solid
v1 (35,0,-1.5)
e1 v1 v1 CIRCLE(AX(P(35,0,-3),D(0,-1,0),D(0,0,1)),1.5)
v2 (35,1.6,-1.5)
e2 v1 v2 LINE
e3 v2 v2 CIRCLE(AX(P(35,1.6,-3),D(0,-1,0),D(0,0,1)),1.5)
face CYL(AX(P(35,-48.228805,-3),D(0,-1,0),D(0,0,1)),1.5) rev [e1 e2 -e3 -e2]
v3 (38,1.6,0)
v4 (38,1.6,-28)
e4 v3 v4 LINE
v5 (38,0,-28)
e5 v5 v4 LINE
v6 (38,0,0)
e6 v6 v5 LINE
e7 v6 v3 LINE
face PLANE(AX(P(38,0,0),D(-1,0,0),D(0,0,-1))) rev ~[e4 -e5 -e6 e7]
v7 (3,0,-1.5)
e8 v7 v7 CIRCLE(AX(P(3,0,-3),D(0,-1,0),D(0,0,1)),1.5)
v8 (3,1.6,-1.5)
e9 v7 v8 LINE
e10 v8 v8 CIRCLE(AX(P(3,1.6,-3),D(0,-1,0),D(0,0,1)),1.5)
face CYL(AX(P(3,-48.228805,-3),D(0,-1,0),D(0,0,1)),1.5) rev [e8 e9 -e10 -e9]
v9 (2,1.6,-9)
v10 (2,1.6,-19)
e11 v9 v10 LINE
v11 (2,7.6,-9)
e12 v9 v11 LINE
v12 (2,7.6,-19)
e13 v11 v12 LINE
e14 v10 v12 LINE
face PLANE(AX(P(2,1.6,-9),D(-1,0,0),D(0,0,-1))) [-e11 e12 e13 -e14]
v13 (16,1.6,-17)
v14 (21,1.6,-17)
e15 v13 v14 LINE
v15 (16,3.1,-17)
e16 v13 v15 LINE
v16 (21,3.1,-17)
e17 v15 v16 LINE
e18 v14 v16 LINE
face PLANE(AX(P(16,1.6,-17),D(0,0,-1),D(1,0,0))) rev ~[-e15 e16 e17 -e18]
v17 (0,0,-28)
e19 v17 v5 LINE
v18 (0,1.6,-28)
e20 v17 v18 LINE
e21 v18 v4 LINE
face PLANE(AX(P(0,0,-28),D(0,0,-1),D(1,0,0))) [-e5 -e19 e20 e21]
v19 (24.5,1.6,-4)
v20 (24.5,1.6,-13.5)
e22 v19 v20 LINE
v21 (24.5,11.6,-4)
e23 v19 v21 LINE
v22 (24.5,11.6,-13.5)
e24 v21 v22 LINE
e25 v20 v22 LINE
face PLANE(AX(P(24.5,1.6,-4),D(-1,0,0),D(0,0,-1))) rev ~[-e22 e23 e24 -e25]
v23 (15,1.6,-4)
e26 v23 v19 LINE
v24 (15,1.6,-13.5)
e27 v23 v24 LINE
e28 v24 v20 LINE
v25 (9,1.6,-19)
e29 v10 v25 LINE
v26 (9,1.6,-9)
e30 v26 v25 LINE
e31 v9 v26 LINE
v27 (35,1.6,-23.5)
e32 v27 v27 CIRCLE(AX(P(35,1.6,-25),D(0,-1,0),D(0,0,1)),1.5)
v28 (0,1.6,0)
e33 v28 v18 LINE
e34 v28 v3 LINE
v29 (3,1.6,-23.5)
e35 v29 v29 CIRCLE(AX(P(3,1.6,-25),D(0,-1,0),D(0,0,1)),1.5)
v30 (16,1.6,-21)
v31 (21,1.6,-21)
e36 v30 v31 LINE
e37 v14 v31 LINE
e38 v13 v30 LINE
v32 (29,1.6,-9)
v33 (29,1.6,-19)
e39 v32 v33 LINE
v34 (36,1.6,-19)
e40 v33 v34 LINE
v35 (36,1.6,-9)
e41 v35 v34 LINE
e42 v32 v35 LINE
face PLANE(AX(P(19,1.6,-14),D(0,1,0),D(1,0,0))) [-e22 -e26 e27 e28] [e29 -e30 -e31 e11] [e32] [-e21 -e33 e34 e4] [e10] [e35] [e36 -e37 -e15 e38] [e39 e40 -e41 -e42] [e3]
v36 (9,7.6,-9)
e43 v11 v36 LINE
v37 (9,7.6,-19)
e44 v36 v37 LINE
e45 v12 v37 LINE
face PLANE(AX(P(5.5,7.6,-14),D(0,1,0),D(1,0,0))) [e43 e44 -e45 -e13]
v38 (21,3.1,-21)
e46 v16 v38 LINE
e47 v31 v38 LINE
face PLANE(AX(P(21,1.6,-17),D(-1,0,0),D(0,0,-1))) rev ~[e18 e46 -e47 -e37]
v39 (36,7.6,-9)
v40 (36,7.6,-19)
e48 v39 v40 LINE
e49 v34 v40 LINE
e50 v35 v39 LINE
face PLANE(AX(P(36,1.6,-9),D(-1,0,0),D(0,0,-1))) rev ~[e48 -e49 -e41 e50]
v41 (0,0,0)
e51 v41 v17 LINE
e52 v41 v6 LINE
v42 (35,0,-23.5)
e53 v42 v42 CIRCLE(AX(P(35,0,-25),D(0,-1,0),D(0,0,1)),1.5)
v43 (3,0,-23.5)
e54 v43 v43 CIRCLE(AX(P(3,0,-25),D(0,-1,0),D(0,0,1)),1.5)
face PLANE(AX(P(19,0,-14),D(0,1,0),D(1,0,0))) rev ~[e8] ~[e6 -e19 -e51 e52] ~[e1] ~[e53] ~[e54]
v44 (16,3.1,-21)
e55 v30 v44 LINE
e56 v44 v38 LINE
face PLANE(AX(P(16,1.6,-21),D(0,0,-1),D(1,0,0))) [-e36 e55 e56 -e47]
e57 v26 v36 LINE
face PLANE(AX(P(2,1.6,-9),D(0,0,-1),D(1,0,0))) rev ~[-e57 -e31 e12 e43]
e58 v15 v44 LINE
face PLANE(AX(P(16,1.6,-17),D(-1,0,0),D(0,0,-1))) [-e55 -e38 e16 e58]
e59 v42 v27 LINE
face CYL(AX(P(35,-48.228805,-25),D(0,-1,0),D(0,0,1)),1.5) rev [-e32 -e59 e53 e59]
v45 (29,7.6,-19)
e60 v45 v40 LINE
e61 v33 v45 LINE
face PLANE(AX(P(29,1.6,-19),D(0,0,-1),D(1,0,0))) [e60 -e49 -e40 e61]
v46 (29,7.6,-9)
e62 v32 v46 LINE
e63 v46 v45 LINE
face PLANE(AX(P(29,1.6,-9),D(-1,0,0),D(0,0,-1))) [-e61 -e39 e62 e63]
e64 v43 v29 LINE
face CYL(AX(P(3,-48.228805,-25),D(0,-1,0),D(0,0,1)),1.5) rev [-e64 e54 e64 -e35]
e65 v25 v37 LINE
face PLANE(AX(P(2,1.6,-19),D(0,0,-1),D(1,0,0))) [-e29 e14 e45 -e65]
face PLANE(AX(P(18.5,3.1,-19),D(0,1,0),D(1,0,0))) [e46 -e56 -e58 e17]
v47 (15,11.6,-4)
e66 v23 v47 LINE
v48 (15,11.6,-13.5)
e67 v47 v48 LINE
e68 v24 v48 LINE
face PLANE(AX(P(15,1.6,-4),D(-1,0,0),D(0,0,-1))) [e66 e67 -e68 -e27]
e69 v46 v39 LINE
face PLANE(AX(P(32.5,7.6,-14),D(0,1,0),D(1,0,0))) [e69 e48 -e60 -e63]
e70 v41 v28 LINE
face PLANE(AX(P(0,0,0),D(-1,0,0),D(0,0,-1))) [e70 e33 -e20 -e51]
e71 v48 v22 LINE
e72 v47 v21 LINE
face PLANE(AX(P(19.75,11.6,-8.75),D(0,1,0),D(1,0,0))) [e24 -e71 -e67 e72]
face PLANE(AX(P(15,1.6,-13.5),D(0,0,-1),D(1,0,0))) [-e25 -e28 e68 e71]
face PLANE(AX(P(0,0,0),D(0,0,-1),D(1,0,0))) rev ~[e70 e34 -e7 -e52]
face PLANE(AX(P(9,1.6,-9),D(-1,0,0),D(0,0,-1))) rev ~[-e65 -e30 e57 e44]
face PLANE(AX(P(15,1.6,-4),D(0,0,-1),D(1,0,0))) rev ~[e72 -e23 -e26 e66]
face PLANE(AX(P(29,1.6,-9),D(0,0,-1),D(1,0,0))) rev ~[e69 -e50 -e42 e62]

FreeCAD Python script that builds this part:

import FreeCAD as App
import Part
import Sketcher
from FreeCAD import Vector

doc = App.newDocument("Part")
body = doc.addObject("PartDesign::Body", "Body")

sketch1 = body.newObject("Sketcher::SketchObject", "Sketch")
sketch1.AttachmentSupport = (doc.getObject("XZ_Plane"), [""])
sketch1.MapMode = "FlatFace"
sketch1.addGeometry([
    Part.LineSegment(Vector(0, -28, 0), Vector(0, 0, 0)),
    Part.LineSegment(Vector(0, 0, 0), Vector(38, 0, 0)),
    Part.LineSegment(Vector(38, 0, 0), Vector(38, -28, 0)),
    Part.LineSegment(Vector(38, -28, 0), Vector(0, -28, 0)),
], False)
sketch1.addConstraint([
    Sketcher.Constraint("Coincident", 0, 2, 1, 1),
    Sketcher.Constraint("Coincident", 1, 2, 2, 1),
    Sketcher.Constraint("Coincident", 2, 2, 3, 1),
    Sketcher.Constraint("Coincident", 3, 2, 0, 1),
    Sketcher.Constraint("Vertical", 0),
    Sketcher.Constraint("Horizontal", 1),
    Sketcher.Constraint("Vertical", 2),
    Sketcher.Constraint("Horizontal", 3),
    Sketcher.Constraint("Coincident", 0, 2, -1, 1),
    Sketcher.Constraint("DistanceX", 1, 1, 1, 2, 38.0),
    Sketcher.Constraint("DistanceY", 0, 1, 0, 2, 28.0),
])
pad1 = body.newObject("PartDesign::Pad", "Pad")
pad1.Profile = sketch1
pad1.Length = 1.6
pad1.Reversed = True

sketch2 = body.newObject("Sketcher::SketchObject", "Sketch001")
sketch2.AttachmentSupport = (doc.getObject("XZ_Plane"), [""])
sketch2.MapMode = "FlatFace"
sketch2.addGeometry(Part.Circle(Vector(3, -3, 0), Vector(0, 0, 1), 1.5), False)
sketch2.addConstraint([
    Sketcher.Constraint("Diameter", 0, 3.0),
    Sketcher.Constraint("DistanceX", -1, 1, 0, 3, 3.0),
    Sketcher.Constraint("DistanceY", 0, 3, -1, 1, 3.0),
])
pocket1 = body.newObject("PartDesign::Pocket", "Pocket")
pocket1.Profile = sketch2
pocket1.Type = "ThroughAll"
pocket1.Midplane = True

sketch3 = body.newObject("Sketcher::SketchObject", "Sketch002")
sketch3.AttachmentSupport = (doc.getObject("XZ_Plane"), [""])
sketch3.MapMode = "FlatFace"
sketch3.addGeometry(Part.Circle(Vector(35, -3, 0), Vector(0, 0, 1), 1.5), False)
sketch3.addConstraint([
    Sketcher.Constraint("Diameter", 0, 3.0),
    Sketcher.Constraint("DistanceX", -1, 1, 0, 3, 35.0),
    Sketcher.Constraint("DistanceY", 0, 3, -1, 1, 3.0),
])
pocket2 = body.newObject("PartDesign::Pocket", "Pocket001")
pocket2.Profile = sketch3
pocket2.Type = "ThroughAll"
pocket2.Midplane = True

sketch4 = body.newObject("Sketcher::SketchObject", "Sketch003")
sketch4.AttachmentSupport = (doc.getObject("XZ_Plane"), [""])
sketch4.MapMode = "FlatFace"
sketch4.addGeometry(Part.Circle(Vector(3, -25, 0), Vector(0, 0, 1), 1.5), False)
sketch4.addConstraint([
    Sketcher.Constraint("Diameter", 0, 3.0),
    Sketcher.Constraint("DistanceX", -1, 1, 0, 3, 3.0),
    Sketcher.Constraint("DistanceY", 0, 3, -1, 1, 25.0),
])
pocket3 = body.newObject("PartDesign::Pocket", "Pocket002")
pocket3.Profile = sketch4
pocket3.Type = "ThroughAll"
pocket3.Midplane = True

sketch5 = body.newObject("Sketcher::SketchObject", "Sketch004")
sketch5.AttachmentSupport = (doc.getObject("XZ_Plane"), [""])
sketch5.MapMode = "FlatFace"
sketch5.addGeometry(Part.Circle(Vector(35, -25, 0), Vector(0, 0, 1), 1.5), False)
sketch5.addConstraint([
    Sketcher.Constraint("Diameter", 0, 3.0),
    Sketcher.Constraint("DistanceX", -1, 1, 0, 3, 35.0),
    Sketcher.Constraint("DistanceY", 0, 3, -1, 1, 25.0),
])
pocket4 = body.newObject("PartDesign::Pocket", "Pocket003")
pocket4.Profile = sketch5
pocket4.Type = "ThroughAll"
pocket4.Midplane = True

sketch6 = body.newObject("Sketcher::SketchObject", "Sketch005")
sketch6.AttachmentSupport = (doc.getObject("XZ_Plane"), [""])
sketch6.MapMode = "FlatFace"
sketch6.AttachmentOffset = App.Placement(Vector(0, 0, -1.6), App.Rotation())
sketch6.addGeometry([
    Part.LineSegment(Vector(2, -19, 0), Vector(2, -9, 0)),
    Part.LineSegment(Vector(2, -9, 0), Vector(9, -9, 0)),
    Part.LineSegment(Vector(9, -9, 0), Vector(9, -19, 0)),
    Part.LineSegment(Vector(9, -19, 0), Vector(2, -19, 0)),
], False)
sketch6.addConstraint([
    Sketcher.Constraint("Coincident", 0, 2, 1, 1),
    Sketcher.Constraint("Coincident", 1, 2, 2, 1),
    Sketcher.Constraint("Coincident", 2, 2, 3, 1),
    Sketcher.Constraint("Coincident", 3, 2, 0, 1),
    Sketcher.Constraint("Vertical", 0),
    Sketcher.Constraint("Horizontal", 1),
    Sketcher.Constraint("Vertical", 2),
    Sketcher.Constraint("Horizontal", 3),
    Sketcher.Constraint("DistanceX", 1, 1, 1, 2, 7.0),
    Sketcher.Constraint("DistanceY", 0, 1, 0, 2, 10.0),
    Sketcher.Constraint("DistanceX", -1, 1, 0, 2, 2.0),
    Sketcher.Constraint("DistanceY", 0, 2, -1, 1, 9.0),
])
pad2 = body.newObject("PartDesign::Pad", "Pad001")
pad2.Profile = sketch6
pad2.Length = 6
pad2.Reversed = True

sketch7 = body.newObject("Sketcher::SketchObject", "Sketch006")
sketch7.AttachmentSupport = (doc.getObject("XZ_Plane"), [""])
sketch7.MapMode = "FlatFace"
sketch7.AttachmentOffset = App.Placement(Vector(0, 0, -1.6), App.Rotation())
sketch7.addGeometry([
    Part.LineSegment(Vector(29, -19, 0), Vector(29, -9, 0)),
    Part.LineSegment(Vector(29, -9, 0), Vector(36, -9, 0)),
    Part.LineSegment(Vector(36, -9, 0), Vector(36, -19, 0)),
    Part.LineSegment(Vector(36, -19, 0), Vector(29, -19, 0)),
], False)
sketch7.addConstraint([
    Sketcher.Constraint("Coincident", 0, 2, 1, 1),
    Sketcher.Constraint("Coincident", 1, 2, 2, 1),
    Sketcher.Constraint("Coincident", 2, 2, 3, 1),
    Sketcher.Constraint("Coincident", 3, 2, 0, 1),
    Sketcher.Constraint("Vertical", 0),
    Sketcher.Constraint("Horizontal", 1),
    Sketcher.Constraint("Vertical", 2),
    Sketcher.Constraint("Horizontal", 3),
    Sketcher.Constraint("DistanceX", 1, 1, 1, 2, 7.0),
    Sketcher.Constraint("DistanceY", 0, 1, 0, 2, 10.0),
    Sketcher.Constraint("DistanceX", -1, 1, 0, 2, 29.0),
    Sketcher.Constraint("DistanceY", 0, 2, -1, 1, 9.0),
])
pad3 = body.newObject("PartDesign::Pad", "Pad002")
pad3.Profile = sketch7
pad3.Length = 6
pad3.Reversed = True

sketch8 = body.newObject("Sketcher::SketchObject", "Sketch007")
sketch8.AttachmentSupport = (doc.getObject("XZ_Plane"), [""])
sketch8.MapMode = "FlatFace"
sketch8.AttachmentOffset = App.Placement(Vector(0, 0, -1.6), App.Rotation())
sketch8.addGeometry([
    Part.LineSegment(Vector(15, -14, 0), Vector(15, -4, 0)),
    Part.LineSegment(Vector(15, -4, 0), Vector(24, -4, 0)),
    Part.LineSegment(Vector(24, -4, 0), Vector(24, -14, 0)),
    Part.LineSegment(Vector(24, -14, 0), Vector(15, -14, 0)),
], False)
sketch8.addConstraint([
    Sketcher.Constraint("Coincident", 0, 2, 1, 1),
    Sketcher.Constraint("Coincident", 1, 2, 2, 1),
    Sketcher.Constraint("Coincident", 2, 2, 3, 1),
    Sketcher.Constraint("Coincident", 3, 2, 0, 1),
    Sketcher.Constraint("Vertical", 0),
    Sketcher.Constraint("Horizontal", 1),
    Sketcher.Constraint("Vertical", 2),
    Sketcher.Constraint("Horizontal", 3),
    Sketcher.Constraint("Equal", 3, 0),
    Sketcher.Constraint("DistanceX", 1, 1, 1, 2, 9.5),
    Sketcher.Constraint("DistanceX", -1, 1, 0, 2, 15.0),
    Sketcher.Constraint("DistanceY", 0, 2, -1, 1, 4.0),
])
pad4 = body.newObject("PartDesign::Pad", "Pad003")
pad4.Profile = sketch8
pad4.Length = 10
pad4.Reversed = True

sketch9 = body.newObject("Sketcher::SketchObject", "Sketch008")
sketch9.AttachmentSupport = (doc.getObject("XZ_Plane"), [""])
sketch9.MapMode = "FlatFace"
sketch9.AttachmentOffset = App.Placement(Vector(0, 0, -1.6), App.Rotation())
sketch9.addGeometry([
    Part.LineSegment(Vector(16, -21, 0), Vector(16, -17, 0)),
    Part.LineSegment(Vector(16, -17, 0), Vector(21, -17, 0)),
    Part.LineSegment(Vector(21, -17, 0), Vector(21, -21, 0)),
    Part.LineSegment(Vector(21, -21, 0), Vector(16, -21, 0)),
], False)
sketch9.addConstraint([
    Sketcher.Constraint("Coincident", 0, 2, 1, 1),
    Sketcher.Constraint("Coincident", 1, 2, 2, 1),
    Sketcher.Constraint("Coincident", 2, 2, 3, 1),
    Sketcher.Constraint("Coincident", 3, 2, 0, 1),
    Sketcher.Constraint("Vertical", 0),
    Sketcher.Constraint("Horizontal", 1),
    Sketcher.Constraint("Vertical", 2),
    Sketcher.Constraint("Horizontal", 3),
    Sketcher.Constraint("DistanceX", 1, 1, 1, 2, 5.0),
    Sketcher.Constraint("DistanceY", 0, 1, 0, 2, 4.0),
    Sketcher.Constraint("DistanceX", -1, 1, 0, 2, 16.0),
    Sketcher.Constraint("DistanceY", 0, 2, -1, 1, 17.0),
])
pad5 = body.newObject("PartDesign::Pad", "Pad004")
pad5.Profile = sketch9
pad5.Length = 1.5
pad5.Reversed = True

doc.recompute()
